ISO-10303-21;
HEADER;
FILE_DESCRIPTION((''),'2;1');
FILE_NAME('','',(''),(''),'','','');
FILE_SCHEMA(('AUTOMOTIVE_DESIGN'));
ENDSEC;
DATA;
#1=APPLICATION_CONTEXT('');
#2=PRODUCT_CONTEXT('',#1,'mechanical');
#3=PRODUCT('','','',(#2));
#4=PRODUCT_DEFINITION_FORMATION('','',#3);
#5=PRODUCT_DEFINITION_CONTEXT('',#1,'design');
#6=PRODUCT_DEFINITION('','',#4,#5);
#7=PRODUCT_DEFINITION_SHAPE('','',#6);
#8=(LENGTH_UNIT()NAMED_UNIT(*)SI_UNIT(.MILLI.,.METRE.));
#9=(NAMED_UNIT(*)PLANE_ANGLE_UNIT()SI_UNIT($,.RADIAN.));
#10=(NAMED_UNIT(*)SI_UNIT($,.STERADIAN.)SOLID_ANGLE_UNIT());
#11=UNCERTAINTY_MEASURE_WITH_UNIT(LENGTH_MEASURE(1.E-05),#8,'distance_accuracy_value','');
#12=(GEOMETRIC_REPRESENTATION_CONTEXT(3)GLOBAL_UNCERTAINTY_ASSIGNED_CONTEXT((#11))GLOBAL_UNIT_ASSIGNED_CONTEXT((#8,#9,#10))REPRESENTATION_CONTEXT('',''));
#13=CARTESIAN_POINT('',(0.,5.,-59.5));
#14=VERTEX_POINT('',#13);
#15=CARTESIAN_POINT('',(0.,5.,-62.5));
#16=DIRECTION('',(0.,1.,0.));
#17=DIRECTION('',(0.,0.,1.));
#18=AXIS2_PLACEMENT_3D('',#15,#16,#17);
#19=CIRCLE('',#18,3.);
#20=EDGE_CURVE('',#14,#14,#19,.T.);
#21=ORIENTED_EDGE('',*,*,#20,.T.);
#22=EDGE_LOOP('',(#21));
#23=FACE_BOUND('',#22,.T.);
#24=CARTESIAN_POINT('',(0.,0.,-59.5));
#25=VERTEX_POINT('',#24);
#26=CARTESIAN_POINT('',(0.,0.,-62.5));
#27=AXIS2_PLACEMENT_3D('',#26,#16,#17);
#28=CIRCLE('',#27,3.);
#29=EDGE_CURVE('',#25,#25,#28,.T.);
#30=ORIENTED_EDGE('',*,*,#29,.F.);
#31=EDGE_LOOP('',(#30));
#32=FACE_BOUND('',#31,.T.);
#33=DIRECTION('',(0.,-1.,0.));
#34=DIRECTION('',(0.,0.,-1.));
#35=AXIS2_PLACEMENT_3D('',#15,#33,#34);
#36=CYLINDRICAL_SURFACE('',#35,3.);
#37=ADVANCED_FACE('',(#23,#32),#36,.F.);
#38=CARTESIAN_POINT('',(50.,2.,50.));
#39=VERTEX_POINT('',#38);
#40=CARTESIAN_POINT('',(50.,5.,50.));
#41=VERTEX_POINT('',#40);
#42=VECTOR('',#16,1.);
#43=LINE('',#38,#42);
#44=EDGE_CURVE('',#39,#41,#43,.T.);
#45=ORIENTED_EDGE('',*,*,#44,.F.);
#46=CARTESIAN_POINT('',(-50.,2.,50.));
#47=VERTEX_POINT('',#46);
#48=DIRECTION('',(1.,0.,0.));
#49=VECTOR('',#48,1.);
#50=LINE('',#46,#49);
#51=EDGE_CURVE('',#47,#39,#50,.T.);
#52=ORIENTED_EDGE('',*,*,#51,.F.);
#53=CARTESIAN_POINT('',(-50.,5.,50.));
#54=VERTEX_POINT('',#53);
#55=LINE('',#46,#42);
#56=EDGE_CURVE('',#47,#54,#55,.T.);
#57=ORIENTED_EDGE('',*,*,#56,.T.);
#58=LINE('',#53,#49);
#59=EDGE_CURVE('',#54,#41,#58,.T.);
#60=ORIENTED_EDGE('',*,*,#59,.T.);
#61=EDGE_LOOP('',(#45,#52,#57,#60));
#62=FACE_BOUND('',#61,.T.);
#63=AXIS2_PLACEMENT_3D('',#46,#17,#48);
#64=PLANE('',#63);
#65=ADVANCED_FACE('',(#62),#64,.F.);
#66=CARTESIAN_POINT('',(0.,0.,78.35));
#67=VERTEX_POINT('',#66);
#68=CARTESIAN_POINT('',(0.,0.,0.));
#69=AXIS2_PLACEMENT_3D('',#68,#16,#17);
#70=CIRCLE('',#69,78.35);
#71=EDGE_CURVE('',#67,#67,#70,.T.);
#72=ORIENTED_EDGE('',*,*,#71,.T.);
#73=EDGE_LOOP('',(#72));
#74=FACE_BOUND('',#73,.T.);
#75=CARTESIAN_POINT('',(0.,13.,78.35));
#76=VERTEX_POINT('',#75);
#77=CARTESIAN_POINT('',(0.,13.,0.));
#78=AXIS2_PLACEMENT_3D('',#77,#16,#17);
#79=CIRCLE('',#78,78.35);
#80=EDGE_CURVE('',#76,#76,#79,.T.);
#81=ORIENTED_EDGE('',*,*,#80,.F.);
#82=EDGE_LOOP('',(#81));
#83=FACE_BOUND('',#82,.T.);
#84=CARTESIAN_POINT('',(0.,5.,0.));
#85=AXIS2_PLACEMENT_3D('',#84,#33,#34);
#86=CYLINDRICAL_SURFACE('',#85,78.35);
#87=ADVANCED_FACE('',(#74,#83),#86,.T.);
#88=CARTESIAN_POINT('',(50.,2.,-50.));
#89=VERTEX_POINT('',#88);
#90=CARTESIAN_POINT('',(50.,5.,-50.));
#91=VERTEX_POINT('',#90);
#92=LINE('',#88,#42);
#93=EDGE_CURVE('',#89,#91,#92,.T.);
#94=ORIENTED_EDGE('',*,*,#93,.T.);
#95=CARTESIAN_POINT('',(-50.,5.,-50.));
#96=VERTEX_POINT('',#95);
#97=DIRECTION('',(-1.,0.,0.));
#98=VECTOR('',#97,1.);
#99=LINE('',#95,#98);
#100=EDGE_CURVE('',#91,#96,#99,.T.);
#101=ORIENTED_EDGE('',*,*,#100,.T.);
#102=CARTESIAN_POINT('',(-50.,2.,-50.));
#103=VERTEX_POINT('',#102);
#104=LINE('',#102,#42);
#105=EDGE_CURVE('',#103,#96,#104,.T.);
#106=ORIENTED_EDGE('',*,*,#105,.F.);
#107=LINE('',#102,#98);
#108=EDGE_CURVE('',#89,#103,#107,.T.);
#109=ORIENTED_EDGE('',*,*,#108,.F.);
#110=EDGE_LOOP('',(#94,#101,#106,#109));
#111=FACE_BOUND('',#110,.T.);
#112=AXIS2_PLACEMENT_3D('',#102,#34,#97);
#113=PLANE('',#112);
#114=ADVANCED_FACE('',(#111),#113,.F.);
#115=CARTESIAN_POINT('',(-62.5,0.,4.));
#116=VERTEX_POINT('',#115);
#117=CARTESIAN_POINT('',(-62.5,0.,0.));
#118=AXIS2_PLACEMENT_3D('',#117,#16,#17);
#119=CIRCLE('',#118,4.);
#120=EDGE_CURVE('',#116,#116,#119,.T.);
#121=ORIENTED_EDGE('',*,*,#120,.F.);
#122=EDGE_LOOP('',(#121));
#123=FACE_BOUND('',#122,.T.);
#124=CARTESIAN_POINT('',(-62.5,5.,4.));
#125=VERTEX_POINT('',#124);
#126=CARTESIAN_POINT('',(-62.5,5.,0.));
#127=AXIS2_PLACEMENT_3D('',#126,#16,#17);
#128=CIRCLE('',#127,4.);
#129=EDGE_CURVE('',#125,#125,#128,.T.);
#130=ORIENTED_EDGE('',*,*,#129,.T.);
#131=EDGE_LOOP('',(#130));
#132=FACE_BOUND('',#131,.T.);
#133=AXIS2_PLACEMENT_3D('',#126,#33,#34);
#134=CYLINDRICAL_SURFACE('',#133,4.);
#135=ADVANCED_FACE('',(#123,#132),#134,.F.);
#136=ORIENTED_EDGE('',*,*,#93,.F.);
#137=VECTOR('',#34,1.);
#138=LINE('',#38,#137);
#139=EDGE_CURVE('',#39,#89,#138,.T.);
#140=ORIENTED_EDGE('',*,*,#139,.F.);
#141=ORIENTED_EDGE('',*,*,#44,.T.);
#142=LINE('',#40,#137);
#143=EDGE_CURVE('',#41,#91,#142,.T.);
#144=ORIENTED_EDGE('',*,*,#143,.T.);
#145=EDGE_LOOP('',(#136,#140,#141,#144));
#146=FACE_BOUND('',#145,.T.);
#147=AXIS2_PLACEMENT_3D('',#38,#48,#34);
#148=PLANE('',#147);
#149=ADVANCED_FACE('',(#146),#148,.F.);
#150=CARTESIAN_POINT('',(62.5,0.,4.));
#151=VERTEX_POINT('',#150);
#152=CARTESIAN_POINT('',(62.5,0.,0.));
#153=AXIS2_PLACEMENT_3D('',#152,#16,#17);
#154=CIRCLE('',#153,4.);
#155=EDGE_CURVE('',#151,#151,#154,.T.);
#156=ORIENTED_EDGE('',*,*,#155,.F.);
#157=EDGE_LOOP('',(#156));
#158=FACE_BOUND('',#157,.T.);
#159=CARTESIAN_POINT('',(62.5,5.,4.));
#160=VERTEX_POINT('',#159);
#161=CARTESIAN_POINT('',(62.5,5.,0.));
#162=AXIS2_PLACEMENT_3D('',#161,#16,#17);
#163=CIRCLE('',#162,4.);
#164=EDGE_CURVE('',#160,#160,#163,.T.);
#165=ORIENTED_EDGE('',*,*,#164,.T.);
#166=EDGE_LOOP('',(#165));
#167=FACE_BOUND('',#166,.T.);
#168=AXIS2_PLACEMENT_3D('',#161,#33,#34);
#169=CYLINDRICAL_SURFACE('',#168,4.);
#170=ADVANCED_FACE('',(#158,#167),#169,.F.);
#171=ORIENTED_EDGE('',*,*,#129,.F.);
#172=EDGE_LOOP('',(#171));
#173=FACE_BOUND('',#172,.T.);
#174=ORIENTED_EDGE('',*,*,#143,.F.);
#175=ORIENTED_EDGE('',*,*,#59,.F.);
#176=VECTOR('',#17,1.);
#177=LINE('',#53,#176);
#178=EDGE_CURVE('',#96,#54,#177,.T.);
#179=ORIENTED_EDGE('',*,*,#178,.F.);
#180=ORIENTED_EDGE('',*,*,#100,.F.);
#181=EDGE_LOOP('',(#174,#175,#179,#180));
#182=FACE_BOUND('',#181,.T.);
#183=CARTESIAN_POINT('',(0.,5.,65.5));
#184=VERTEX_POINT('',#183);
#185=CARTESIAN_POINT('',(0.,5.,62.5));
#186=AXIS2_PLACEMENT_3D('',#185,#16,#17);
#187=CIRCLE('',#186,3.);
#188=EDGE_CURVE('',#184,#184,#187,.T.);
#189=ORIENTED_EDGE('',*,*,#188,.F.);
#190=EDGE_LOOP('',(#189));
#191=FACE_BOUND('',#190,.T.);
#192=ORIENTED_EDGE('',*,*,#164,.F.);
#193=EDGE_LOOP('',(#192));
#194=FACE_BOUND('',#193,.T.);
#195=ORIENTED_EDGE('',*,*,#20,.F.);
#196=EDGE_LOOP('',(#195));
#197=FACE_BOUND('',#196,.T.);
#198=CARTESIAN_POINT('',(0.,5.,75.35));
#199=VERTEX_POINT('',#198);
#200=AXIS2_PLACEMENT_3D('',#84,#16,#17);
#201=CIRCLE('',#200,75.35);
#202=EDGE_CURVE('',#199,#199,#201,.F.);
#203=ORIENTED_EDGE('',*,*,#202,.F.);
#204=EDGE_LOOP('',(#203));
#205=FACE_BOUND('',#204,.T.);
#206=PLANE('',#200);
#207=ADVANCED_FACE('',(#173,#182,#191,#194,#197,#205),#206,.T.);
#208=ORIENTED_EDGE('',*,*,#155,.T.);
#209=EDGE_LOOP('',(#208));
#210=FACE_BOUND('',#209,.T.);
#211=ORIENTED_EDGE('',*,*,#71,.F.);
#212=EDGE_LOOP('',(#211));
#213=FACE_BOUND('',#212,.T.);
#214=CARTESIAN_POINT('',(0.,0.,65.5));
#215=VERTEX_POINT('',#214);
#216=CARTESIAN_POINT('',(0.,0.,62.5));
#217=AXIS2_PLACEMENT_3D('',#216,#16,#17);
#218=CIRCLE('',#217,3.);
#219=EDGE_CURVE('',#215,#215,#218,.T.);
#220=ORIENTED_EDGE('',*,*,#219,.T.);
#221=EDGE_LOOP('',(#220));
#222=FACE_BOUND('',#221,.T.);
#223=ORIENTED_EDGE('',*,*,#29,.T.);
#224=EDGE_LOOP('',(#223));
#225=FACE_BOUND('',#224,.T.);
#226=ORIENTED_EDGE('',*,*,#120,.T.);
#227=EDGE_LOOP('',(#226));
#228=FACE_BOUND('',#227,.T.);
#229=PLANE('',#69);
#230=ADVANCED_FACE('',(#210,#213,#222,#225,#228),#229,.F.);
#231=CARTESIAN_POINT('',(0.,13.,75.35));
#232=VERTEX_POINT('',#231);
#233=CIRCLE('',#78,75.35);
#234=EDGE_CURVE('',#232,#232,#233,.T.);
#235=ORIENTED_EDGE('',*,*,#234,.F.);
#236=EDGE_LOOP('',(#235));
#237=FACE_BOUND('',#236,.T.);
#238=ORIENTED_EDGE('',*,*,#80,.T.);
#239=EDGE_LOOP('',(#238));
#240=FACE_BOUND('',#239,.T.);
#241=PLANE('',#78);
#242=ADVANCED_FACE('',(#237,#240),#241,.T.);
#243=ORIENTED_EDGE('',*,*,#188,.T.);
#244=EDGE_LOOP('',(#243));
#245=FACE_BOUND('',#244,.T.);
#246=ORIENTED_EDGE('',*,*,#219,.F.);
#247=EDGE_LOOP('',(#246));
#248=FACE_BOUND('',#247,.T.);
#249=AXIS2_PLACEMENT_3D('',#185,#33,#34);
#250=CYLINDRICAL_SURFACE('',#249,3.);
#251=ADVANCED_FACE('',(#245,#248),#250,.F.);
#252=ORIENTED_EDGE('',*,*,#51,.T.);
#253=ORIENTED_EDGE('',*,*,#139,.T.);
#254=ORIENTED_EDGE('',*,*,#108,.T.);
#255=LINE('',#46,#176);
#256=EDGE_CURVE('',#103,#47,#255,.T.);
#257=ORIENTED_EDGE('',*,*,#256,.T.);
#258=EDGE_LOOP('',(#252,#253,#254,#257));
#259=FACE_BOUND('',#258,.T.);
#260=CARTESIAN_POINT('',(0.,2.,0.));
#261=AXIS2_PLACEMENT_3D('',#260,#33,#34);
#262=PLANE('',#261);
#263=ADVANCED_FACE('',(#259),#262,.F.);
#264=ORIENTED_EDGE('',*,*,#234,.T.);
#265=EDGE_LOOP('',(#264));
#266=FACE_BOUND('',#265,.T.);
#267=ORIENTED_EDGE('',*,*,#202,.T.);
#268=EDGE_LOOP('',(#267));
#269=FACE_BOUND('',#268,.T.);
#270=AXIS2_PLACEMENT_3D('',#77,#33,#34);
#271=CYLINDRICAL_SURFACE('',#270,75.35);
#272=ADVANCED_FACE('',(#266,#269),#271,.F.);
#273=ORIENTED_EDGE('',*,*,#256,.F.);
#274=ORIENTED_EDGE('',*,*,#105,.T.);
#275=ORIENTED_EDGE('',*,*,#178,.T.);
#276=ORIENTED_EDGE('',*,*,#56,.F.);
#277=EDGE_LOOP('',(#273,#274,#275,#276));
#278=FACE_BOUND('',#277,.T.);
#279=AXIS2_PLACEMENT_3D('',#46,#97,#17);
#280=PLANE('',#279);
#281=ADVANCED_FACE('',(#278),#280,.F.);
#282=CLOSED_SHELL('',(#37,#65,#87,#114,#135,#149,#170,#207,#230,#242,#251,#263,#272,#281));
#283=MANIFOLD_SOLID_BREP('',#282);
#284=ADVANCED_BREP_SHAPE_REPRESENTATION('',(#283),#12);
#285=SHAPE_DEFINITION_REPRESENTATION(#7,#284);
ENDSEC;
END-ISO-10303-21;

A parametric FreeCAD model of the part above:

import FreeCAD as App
import Part
import Sketcher
Q = App.Units.Quantity


def add_polygon(sketch, points):
    """Adds a closed chain of lines whose ends are joined by coincident constraints."""
    first, n = sketch.GeometryCount, len(points)
    for a, b in zip(points, points[1:] + points[:1]):
        sketch.addGeometry(Part.LineSegment(App.Vector(*a, 0), App.Vector(*b, 0)), False)
    for i in range(n):
        sketch.addConstraint(Sketcher.Constraint("Coincident", first + i, 2, first + (i + 1) % n, 1))

doc = App.newDocument("Part")
body = doc.addObject("PartDesign::Body", "Body")

# Sketch on XZ plane
sketch1 = body.newObject("Sketcher::SketchObject", "Sketch")
sketch1.AttachmentSupport = (doc.getObject("XZ_Plane"), [""])
sketch1.MapMode = "FlatFace"
sketch1.addGeometry([
    Part.Circle(App.Vector(0, 0, 0), App.Vector(0, 0, 1), 78.3),  # 0
    Part.Circle(App.Vector(0, -62.5, 0), App.Vector(0, 0, 1), 3),  # 1
    Part.Circle(App.Vector(-62.5, 0, 0), App.Vector(0, 0, 1), 4),  # 2
    Part.Circle(App.Vector(62.5, 0, 0), App.Vector(0, 0, 1), 4),  # 3
    Part.Circle(App.Vector(0, 62.5, 0), App.Vector(0, 0, 1), 3),  # 4
], False)
sketch1.addConstraint([
    Sketcher.Constraint("Coincident", 0, 3, -1, 1),
    Sketcher.Constraint("Equal", 2, 3),
    Sketcher.Constraint("Equal", 1, 4),
    Sketcher.Constraint("Symmetric", 2, 3, 3, 3, -1, 1),
    Sketcher.Constraint("Symmetric", 1, 3, 4, 3, -1, 1),
    Sketcher.Constraint("PointOnObject", 1, 3, -2),
    Sketcher.Constraint("PointOnObject", 2, 3, -1),
    Sketcher.Constraint("Diameter", 1, Q("6 mm")),
    Sketcher.Constraint("Diameter", 2, Q("8 mm")),
    Sketcher.Constraint("Diameter", 0, Q("156.7 mm")),
    Sketcher.Constraint("DistanceX", 2, 3, 3, 3, Q("125 mm")),
    Sketcher.Constraint("DistanceY", 1, 3, 4, 3, Q("125 mm")),
])
pad1 = body.newObject("PartDesign::Pad", "Pad")
pad1.Profile = sketch1
pad1.Length = 5
pad1.Reversed = True

# Sketch on XZ plane
sketch2 = body.newObject("Sketcher::SketchObject", "Sketch001")
sketch2.AttachmentSupport = (doc.getObject("XZ_Plane"), [""])
sketch2.MapMode = "FlatFace"
sketch2.AttachmentOffset = App.Placement(App.Vector(0, 0, -5), App.Rotation())
sketch2.addGeometry([
    Part.Circle(App.Vector(0, 0, 0), App.Vector(0, 0, 1), 78),
    Part.Circle(App.Vector(0, 0, 0), App.Vector(0, 0, 1), 75),
], False)
sketch2.addConstraint([
    Sketcher.Constraint("Coincident", 0, 3, -1, 1),
    Sketcher.Constraint("Coincident", 1, 3, -1, 1),
    Sketcher.Constraint("Diameter", 0, Q("156.7 mm")),
    Sketcher.Constraint("Diameter", 1, Q("150.7 mm")),
])
pad2 = body.newObject("PartDesign::Pad", "Pad001")
pad2.Profile = sketch2
pad2.Length = 8
pad2.Reversed = True

# Sketch on XZ plane
sketch3 = body.newObject("Sketcher::SketchObject", "Sketch002")
sketch3.AttachmentSupport = (doc.getObject("XZ_Plane"), [""])
sketch3.MapMode = "FlatFace"
sketch3.AttachmentOffset = App.Placement(App.Vector(0, 0, -5), App.Rotation())
add_polygon(sketch3, [(-50, -50), (-50, 50), (50, 50), (50, -50)])  # lines 0-3
sketch3.addConstraint([
    Sketcher.Constraint("Vertical", 0),
    Sketcher.Constraint("Horizontal", 1),
    Sketcher.Constraint("Vertical", 2),
    Sketcher.Constraint("Horizontal", 3),
    Sketcher.Constraint("Symmetric", 0, 2, 2, 2, -1, 1),
    Sketcher.Constraint("Equal", 3, 0),
    Sketcher.Constraint("DistanceX", 1, 1, 1, 2, Q("100 mm")),
])
pocket1 = body.newObject("PartDesign::Pocket", "Pocket")
pocket1.Profile = sketch3
pocket1.Length = 3
pocket1.Reversed = True

doc.recompute()
